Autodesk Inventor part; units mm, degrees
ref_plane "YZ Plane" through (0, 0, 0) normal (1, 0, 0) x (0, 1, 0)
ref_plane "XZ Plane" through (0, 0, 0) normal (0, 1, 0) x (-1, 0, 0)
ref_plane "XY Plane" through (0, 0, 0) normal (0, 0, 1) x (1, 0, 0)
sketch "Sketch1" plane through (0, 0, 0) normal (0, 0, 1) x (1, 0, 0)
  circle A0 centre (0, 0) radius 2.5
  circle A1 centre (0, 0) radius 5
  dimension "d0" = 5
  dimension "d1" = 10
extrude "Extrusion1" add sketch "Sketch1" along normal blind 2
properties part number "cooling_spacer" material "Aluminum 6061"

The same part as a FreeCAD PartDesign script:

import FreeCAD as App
import Part
import Sketcher

V = App.Vector
Q = App.Units.Quantity

doc = App.newDocument("Part")
body = doc.addObject("PartDesign::Body", "Body")

sketch1 = body.newObject("Sketcher::SketchObject", "Sketch")
sketch1.AttachmentSupport = (doc.getObject("XY_Plane"), [""])
sketch1.MapMode = "FlatFace"
sketch1.addGeometry([
    Part.Circle(V(0, 0, 0), V(0, 0, 1), 5),
    Part.Circle(V(0, 0, 0), V(0, 0, 1), 2.5),
], False)
sketch1.addConstraint([
    Sketcher.Constraint("Coincident", 0, 3, -1, 1),
    Sketcher.Constraint("Coincident", 1, 3, -1, 1),
    Sketcher.Constraint("Diameter", 0, Q("10 mm")),
    Sketcher.Constraint("Diameter", 1, Q("5 mm")),
])
pad1 = body.newObject("PartDesign::Pad", "Pad")
pad1.Profile = sketch1
pad1.Length = 2

doc.recompute()
